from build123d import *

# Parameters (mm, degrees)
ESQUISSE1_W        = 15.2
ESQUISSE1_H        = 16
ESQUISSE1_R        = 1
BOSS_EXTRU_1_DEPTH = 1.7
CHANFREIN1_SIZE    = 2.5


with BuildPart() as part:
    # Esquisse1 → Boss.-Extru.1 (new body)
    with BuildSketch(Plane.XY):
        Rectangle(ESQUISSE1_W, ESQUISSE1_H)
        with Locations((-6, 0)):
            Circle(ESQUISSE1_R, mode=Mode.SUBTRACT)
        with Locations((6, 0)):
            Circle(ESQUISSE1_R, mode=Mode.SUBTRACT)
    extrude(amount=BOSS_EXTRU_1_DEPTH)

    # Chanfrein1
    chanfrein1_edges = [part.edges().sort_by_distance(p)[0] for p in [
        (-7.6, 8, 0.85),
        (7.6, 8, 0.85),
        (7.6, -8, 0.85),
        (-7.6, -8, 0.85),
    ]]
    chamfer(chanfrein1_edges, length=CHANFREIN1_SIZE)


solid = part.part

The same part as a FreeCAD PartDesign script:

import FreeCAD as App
import Part
import Sketcher

V = App.Vector


def edges_at(feature, points):
    """Names of the edges that pass closest to the given points."""
    edges = feature.Shape.Edges
    near = lambda p: min(range(len(edges)), key=lambda i: edges[i].distToShape(Part.Vertex(*p))[0])
    return sorted({f"Edge{near(p) + 1}" for p in points})


def add_polygon(sketch, points):
    """Adds a closed chain of lines whose ends are joined by coincident constraints."""
    first, n = sketch.GeometryCount, len(points)
    for a, b in zip(points, points[1:] + points[:1]):
        sketch.addGeometry(Part.LineSegment(App.Vector(*a, 0), App.Vector(*b, 0)), False)
    for i in range(n):
        sketch.addConstraint(Sketcher.Constraint("Coincident", first + i, 2, first + (i + 1) % n, 1))

doc = App.newDocument("Part")
body = doc.addObject("PartDesign::Body", "Body")

sketch1 = body.newObject("Sketcher::SketchObject", "Sketch")
sketch1.AttachmentSupport = (doc.getObject("XY_Plane"), [""])
sketch1.MapMode = "FlatFace"
add_polygon(sketch1, [(-7.6, 8), (-7.6, -8), (7.6, -8), (7.6, 8)])
sketch1.addGeometry(Part.Circle(V(-6, 0, 0), V(0, 0, 1), 1), False)
sketch1.addGeometry(Part.Circle(V(6, 0, 0), V(0, 0, 1), 1), False)
sketch1.addConstraint(Sketcher.Constraint("Vertical", 0))
sketch1.addConstraint(Sketcher.Constraint("Horizontal", 1))
sketch1.addConstraint(Sketcher.Constraint("Vertical", 2))
sketch1.addConstraint(Sketcher.Constraint("Horizontal", 3))
sketch1.addConstraint(Sketcher.Constraint("Equal", 4, 5))
sketch1.addConstraint(Sketcher.Constraint("Symmetric", 4, 3, 5, 3, -1, 1))
sketch1.addConstraint(Sketcher.Constraint("Symmetric", 0, 2, 2, 2, -1, 1))
sketch1.addConstraint(Sketcher.Constraint("PointOnObject", 4, 3, -1))
sketch1.addConstraint(Sketcher.Constraint("Diameter", 4, 2.0))
sketch1.addConstraint(Sketcher.Constraint("DistanceY", 0, 2, 0, 1, 16.0))
sketch1.addConstraint(Sketcher.Constraint("DistanceX", 1, 1, 1, 2, 15.2))
sketch1.addConstraint(Sketcher.Constraint("DistanceX", 4, 3, -1, 1, 6.0))
pad1 = body.newObject("PartDesign::Pad", "Pad")
pad1.Profile = sketch1
pad1.Length = 1.7
doc.recompute()

chamfer = body.newObject("PartDesign::Chamfer", "Chamfer")
chamfer.Base = (pad1, edges_at(pad1, [
    (-7.6, 8, 0.85),
    (7.6, 8, 0.85),
    (7.6, -8, 0.85),
    (-7.6, -8, 0.85),
]))
chamfer.Size = 2.5

doc.recompute()
